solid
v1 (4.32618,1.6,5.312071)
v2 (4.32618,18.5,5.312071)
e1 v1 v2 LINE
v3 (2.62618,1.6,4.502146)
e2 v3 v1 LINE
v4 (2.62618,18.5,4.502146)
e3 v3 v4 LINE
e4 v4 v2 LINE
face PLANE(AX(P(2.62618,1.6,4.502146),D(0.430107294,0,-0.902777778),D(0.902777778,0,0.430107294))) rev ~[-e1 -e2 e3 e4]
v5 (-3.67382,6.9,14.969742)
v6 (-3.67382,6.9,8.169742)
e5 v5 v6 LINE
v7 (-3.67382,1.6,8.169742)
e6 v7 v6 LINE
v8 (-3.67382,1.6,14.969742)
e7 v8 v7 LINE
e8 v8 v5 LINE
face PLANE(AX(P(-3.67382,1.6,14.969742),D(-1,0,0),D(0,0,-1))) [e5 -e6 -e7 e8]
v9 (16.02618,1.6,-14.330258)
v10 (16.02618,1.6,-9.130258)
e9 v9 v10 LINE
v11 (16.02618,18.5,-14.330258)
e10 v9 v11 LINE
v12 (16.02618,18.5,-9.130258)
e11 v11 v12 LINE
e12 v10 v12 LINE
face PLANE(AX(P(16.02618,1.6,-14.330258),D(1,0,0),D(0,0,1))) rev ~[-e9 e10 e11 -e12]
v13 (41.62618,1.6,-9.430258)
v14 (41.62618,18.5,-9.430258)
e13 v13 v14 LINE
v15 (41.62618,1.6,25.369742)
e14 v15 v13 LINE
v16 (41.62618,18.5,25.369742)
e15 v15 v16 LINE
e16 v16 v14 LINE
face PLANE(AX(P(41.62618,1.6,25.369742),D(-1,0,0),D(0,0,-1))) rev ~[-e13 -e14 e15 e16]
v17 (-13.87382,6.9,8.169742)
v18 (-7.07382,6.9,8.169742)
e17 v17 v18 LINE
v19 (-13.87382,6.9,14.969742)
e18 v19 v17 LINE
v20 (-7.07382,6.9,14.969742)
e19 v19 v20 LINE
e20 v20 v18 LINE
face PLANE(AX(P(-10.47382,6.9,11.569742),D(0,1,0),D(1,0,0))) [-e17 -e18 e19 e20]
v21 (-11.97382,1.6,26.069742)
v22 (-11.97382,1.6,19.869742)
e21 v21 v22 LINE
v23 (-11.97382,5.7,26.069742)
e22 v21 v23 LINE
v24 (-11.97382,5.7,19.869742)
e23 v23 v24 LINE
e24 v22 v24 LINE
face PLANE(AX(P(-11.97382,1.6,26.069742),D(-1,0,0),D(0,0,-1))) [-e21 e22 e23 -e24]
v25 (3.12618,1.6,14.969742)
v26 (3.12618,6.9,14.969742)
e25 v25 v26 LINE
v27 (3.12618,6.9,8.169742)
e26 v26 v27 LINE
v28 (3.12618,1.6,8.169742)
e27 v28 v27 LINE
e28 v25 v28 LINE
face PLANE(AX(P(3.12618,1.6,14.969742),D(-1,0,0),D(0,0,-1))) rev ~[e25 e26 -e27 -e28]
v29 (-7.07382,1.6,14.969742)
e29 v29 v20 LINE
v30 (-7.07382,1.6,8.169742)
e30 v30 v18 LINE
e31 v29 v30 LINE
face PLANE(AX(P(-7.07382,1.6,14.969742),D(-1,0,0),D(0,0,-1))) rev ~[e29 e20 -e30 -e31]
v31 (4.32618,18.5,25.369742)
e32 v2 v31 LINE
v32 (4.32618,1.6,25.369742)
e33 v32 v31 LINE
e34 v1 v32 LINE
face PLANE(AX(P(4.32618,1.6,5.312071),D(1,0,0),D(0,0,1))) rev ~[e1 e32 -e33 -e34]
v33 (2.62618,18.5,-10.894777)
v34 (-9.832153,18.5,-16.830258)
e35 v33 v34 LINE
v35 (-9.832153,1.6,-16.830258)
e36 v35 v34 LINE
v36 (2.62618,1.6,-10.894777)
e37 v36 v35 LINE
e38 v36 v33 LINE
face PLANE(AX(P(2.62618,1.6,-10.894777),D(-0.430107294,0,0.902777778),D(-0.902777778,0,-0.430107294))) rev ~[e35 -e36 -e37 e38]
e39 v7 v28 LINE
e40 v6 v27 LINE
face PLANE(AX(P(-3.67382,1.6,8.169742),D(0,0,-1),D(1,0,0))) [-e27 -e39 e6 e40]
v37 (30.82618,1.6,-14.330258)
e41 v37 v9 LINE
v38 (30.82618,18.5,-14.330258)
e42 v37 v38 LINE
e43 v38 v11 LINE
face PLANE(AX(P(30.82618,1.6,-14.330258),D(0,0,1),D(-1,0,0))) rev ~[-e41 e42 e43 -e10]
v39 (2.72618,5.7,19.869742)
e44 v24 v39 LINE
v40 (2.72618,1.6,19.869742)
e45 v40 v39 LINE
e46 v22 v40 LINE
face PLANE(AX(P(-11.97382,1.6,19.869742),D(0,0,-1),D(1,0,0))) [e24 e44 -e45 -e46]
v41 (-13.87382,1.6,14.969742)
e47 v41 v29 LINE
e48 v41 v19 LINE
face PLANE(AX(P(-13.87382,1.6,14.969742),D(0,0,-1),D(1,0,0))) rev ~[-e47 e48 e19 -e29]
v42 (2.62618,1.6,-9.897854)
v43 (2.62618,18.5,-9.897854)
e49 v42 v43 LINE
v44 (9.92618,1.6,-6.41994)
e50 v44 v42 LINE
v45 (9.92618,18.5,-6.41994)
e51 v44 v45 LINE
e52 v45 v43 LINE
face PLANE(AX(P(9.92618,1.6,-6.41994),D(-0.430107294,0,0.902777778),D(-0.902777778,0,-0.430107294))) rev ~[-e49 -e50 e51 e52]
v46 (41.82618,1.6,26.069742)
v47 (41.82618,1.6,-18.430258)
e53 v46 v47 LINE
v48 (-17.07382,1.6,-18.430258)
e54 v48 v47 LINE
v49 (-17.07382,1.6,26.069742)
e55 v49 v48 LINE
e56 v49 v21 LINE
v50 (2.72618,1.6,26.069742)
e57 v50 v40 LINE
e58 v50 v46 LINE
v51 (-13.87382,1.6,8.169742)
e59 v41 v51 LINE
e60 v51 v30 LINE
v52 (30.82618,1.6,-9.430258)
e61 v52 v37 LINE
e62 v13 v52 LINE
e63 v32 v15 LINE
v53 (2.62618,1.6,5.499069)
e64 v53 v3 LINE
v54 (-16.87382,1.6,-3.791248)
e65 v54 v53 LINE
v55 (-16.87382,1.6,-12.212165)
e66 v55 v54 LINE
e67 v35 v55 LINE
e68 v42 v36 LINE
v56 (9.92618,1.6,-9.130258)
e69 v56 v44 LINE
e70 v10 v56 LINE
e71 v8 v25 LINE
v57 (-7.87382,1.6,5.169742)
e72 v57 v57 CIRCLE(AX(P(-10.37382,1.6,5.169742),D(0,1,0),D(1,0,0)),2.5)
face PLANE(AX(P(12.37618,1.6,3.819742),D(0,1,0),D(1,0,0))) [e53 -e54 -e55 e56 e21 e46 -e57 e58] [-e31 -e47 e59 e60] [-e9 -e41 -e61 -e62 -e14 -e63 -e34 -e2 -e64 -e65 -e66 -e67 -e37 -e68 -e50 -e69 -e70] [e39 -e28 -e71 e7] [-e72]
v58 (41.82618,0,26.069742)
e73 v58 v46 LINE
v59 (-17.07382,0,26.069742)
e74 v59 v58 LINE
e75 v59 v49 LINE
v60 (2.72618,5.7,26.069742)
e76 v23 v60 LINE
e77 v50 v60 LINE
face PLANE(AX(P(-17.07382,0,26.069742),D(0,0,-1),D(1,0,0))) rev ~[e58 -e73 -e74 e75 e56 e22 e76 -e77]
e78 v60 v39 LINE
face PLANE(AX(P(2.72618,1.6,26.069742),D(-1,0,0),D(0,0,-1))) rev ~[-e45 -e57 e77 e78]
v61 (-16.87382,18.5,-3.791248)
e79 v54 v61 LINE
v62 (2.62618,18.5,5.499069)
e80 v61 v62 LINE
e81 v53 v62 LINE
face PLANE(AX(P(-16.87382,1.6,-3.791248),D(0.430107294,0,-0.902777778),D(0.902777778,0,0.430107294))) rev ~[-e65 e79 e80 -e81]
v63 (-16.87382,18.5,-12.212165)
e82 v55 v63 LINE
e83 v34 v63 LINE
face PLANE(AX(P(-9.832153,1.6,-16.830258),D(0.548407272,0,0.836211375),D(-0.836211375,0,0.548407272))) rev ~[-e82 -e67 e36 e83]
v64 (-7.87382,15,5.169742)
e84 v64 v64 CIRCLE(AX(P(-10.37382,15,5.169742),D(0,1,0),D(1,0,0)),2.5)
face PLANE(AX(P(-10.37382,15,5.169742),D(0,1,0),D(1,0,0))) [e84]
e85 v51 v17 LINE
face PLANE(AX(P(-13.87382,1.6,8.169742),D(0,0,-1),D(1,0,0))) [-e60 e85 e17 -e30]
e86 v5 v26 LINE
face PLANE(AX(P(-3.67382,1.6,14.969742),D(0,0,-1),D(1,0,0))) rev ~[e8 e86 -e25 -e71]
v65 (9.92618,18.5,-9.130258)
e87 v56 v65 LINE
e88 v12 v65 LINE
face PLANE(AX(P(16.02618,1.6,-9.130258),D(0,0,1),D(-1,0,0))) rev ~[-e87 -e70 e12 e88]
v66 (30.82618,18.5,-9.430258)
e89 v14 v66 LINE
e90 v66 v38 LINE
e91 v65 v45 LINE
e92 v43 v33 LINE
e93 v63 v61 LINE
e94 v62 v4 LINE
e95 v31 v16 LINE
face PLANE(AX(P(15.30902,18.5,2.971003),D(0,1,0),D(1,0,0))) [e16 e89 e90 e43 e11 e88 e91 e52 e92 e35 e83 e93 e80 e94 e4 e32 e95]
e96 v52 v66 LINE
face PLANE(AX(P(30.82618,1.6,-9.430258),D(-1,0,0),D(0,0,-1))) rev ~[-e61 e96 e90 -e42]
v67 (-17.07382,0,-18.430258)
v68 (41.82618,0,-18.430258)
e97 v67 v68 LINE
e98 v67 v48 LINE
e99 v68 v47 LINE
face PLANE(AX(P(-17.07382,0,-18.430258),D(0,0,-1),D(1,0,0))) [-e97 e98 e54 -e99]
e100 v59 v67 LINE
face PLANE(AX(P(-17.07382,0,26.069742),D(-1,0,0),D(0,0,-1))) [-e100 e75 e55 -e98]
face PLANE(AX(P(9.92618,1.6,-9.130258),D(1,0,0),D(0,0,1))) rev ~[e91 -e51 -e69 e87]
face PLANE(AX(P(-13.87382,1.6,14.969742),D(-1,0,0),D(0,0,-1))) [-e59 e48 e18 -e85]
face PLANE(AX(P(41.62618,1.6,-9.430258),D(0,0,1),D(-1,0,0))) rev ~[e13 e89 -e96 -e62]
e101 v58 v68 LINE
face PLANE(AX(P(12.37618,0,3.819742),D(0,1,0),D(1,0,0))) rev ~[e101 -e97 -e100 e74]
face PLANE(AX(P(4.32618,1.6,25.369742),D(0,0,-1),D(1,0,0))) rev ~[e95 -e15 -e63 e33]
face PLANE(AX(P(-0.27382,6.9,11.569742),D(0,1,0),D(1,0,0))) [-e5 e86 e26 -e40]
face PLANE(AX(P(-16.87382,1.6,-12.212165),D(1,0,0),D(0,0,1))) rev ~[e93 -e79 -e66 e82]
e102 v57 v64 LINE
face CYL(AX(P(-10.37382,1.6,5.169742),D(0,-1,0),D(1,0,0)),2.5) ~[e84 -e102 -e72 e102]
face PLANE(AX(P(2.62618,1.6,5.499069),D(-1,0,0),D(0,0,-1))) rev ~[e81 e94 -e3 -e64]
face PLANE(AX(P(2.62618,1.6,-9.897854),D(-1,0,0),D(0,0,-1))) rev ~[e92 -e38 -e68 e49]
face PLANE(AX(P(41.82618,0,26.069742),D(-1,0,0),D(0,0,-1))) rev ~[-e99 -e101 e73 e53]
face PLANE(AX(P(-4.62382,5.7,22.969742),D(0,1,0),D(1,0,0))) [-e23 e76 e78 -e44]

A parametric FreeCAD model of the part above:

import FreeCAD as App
import Part
import Sketcher

V = App.Vector
Q = App.Units.Quantity


def add_polygon(sketch, points):
    """Adds a closed chain of lines whose ends are joined by coincident constraints."""
    first, n = sketch.GeometryCount, len(points)
    for a, b in zip(points, points[1:] + points[:1]):
        sketch.addGeometry(Part.LineSegment(App.Vector(*a, 0), App.Vector(*b, 0)), False)
    for i in range(n):
        sketch.addConstraint(Sketcher.Constraint("Coincident", first + i, 2, first + (i + 1) % n, 1))

doc = App.newDocument("Part")
body = doc.addObject("PartDesign::Body", "Body")

# Sketch on XZ plane
sketch1 = body.newObject("Sketcher::SketchObject", "Sketch")
sketch1.AttachmentSupport = (doc.getObject("XZ_Plane"), [""])
sketch1.MapMode = "FlatFace"
add_polygon(sketch1, [(-17.07382, -18.430258), (-17.07382, 26.069742), (41.82618, 26.069742), (41.82618, -18.430258)])  # lines 0-3
sketch1.addConstraint([
    Sketcher.Constraint("Vertical", 0),
    Sketcher.Constraint("Horizontal", 1),
    Sketcher.Constraint("Vertical", 2),
    Sketcher.Constraint("Horizontal", 3),
    Sketcher.Constraint("DistanceX", 1, 1, 1, 2, Q("58.9 mm")),
    Sketcher.Constraint("DistanceY", 0, 1, 0, 2, Q("44.5 mm")),
    Sketcher.Constraint("DistanceX", 0, 2, -1, 1, Q("17.07382 mm")),
    Sketcher.Constraint("DistanceY", -1, 1, 0, 2, Q("26.069742 mm")),
])
pad1 = body.newObject("PartDesign::Pad", "Pad")
pad1.Profile = sketch1
pad1.Length = 1.6
pad1.Reversed = True

# Sketch on XZ plane
sketch2 = body.newObject("Sketcher::SketchObject", "Sketch001")
sketch2.AttachmentSupport = (doc.getObject("XZ_Plane"), [""])
sketch2.MapMode = "FlatFace"
sketch2.AttachmentOffset = App.Placement(V(0, 0, -1.6), App.Rotation())
add_polygon(sketch2, [(-16.87382, -12.212165), (-16.87382, -3.791248), (2.62618, 5.499069), (2.62618, 4.502146), (4.32618, 5.312071), (4.32618, 25.369742), (41.62618, 25.369742), (41.62618, -9.430258), (30.82618, -9.430258), (30.82618, -14.330258), (16.02618, -14.330258), (16.02618, -9.130258), (9.92618, -9.130258), (9.92618, -6.41994), (2.62618, -9.897854), (2.62618, -10.894777), (-9.832153, -16.830258)])  # lines 0-16
sketch2.addConstraint([
    Sketcher.Constraint("Vertical", 0),
    Sketcher.Constraint("Vertical", 2),
    Sketcher.Constraint("Vertical", 4),
    Sketcher.Constraint("Horizontal", 5),
    Sketcher.Constraint("Vertical", 6),
    Sketcher.Constraint("Horizontal", 7),
    Sketcher.Constraint("Vertical", 8),
    Sketcher.Constraint("Horizontal", 9),
    Sketcher.Constraint("Vertical", 10),
    Sketcher.Constraint("Horizontal", 11),
    Sketcher.Constraint("Vertical", 12),
    Sketcher.Constraint("Vertical", 14),
    Sketcher.Constraint("Parallel", 1, 3),
    Sketcher.Constraint("Parallel", 3, 13),
    Sketcher.Constraint("Parallel", 13, 15),
    Sketcher.Constraint("Vertical", 2, 2, 13, 2),
    Sketcher.Constraint("Equal", 2, 14),
    Sketcher.Constraint("DistanceX", 5, 1, 5, 2, Q("37.3 mm")),
    Sketcher.Constraint("DistanceX", 7, 2, 7, 1, Q("10.8 mm")),
    Sketcher.Constraint("DistanceX", 9, 2, 9, 1, Q("14.8 mm")),
    Sketcher.Constraint("DistanceX", 11, 2, 11, 1, Q("6.1 mm")),
    Sketcher.Constraint("DistanceY", 6, 2, 6, 1, Q("34.8 mm")),
    Sketcher.Constraint("DistanceY", 8, 2, 8, 1, Q("4.9 mm")),
    Sketcher.Constraint("DistanceY", 10, 1, 10, 2, Q("5.2 mm")),
    Sketcher.Constraint("DistanceX", 1, 2, 5, 2, Q("39 mm")),
    Sketcher.Constraint("Distance", 1, Q("21.6 mm")),
    Sketcher.Constraint("Distance", 15, Q("13.8 mm")),
    Sketcher.Constraint("DistanceX", 0, 2, 1, 2, Q("19.5 mm")),
    Sketcher.Constraint("DistanceY", 13, 2, 2, 2, Q("14.4 mm")),
    Sketcher.Constraint("DistanceY", 15, 2, 11, 2, Q("7.7 mm")),
    Sketcher.Constraint("DistanceY", 4, 1, 4, 2, Q("20.057671 mm")),
    Sketcher.Constraint("DistanceY", 0, 1, 0, 2, Q("8.420917 mm")),
    Sketcher.Constraint("DistanceX", 0, 2, -1, 1, Q("16.87382 mm")),
    Sketcher.Constraint("DistanceY", 0, 2, -1, 1, Q("3.791248 mm")),
])
pad2 = body.newObject("PartDesign::Pad", "Pad001")
pad2.Profile = sketch2
pad2.Length = 16.9
pad2.Reversed = True

# Sketch on XZ plane
sketch3 = body.newObject("Sketcher::SketchObject", "Sketch002")
sketch3.AttachmentSupport = (doc.getObject("XZ_Plane"), [""])
sketch3.MapMode = "FlatFace"
sketch3.AttachmentOffset = App.Placement(V(0, 0, -1.6), App.Rotation())
add_polygon(sketch3, [(-11.97382, 19.869742), (-11.97382, 26.069742), (2.72618, 26.069742), (2.72618, 19.869742)])  # lines 0-3
sketch3.addConstraint([
    Sketcher.Constraint("Vertical", 0),
    Sketcher.Constraint("Horizontal", 1),
    Sketcher.Constraint("Vertical", 2),
    Sketcher.Constraint("Horizontal", 3),
    Sketcher.Constraint("DistanceX", 1, 1, 1, 2, Q("14.7 mm")),
    Sketcher.Constraint("DistanceY", 0, 1, 0, 2, Q("6.2 mm")),
    Sketcher.Constraint("DistanceX", 0, 2, -1, 1, Q("11.97382 mm")),
    Sketcher.Constraint("DistanceY", -1, 1, 0, 2, Q("26.069742 mm")),
])
pad3 = body.newObject("PartDesign::Pad", "Pad002")
pad3.Profile = sketch3
pad3.Length = 4.1
pad3.Reversed = True

# Sketch on XZ plane
sketch4 = body.newObject("Sketcher::SketchObject", "Sketch003")
sketch4.AttachmentSupport = (doc.getObject("XZ_Plane"), [""])
sketch4.MapMode = "FlatFace"
sketch4.AttachmentOffset = App.Placement(V(0, 0, -1.6), App.Rotation())
add_polygon(sketch4, [(-13.87382, 8.169742), (-13.87382, 14.969742), (-7.07382, 14.969742), (-7.07382, 8.169742)])  # lines 0-3
add_polygon(sketch4, [(-3.67382, 8.169742), (-3.67382, 14.969742), (3.12618, 14.969742), (3.12618, 8.169742)])  # lines 4-7
sketch4.addConstraint([
    Sketcher.Constraint("Vertical", 0),
    Sketcher.Constraint("Horizontal", 1),
    Sketcher.Constraint("Vertical", 2),
    Sketcher.Constraint("Horizontal", 3),
    Sketcher.Constraint("Vertical", 4),
    Sketcher.Constraint("Horizontal", 5),
    Sketcher.Constraint("Vertical", 6),
    Sketcher.Constraint("Horizontal", 7),
    Sketcher.Constraint("Horizontal", 1, 2, 4, 2),
    Sketcher.Constraint("Horizontal", 3, 2, 6, 2),
    Sketcher.Constraint("Equal", 3, 5),
    Sketcher.Constraint("Equal", 7, 0),
    Sketcher.Constraint("DistanceX", 1, 1, 1, 2, Q("6.8 mm")),
    Sketcher.Constraint("DistanceX", 0, 2, 5, 2, Q("17 mm")),
    Sketcher.Constraint("DistanceX", 0, 2, -1, 1, Q("13.87382 mm")),
    Sketcher.Constraint("DistanceY", -1, 1, 0, 2, Q("14.969742 mm")),
])
pad4 = body.newObject("PartDesign::Pad", "Pad003")
pad4.Profile = sketch4
pad4.Length = 5.3
pad4.Reversed = True

# Sketch on XZ plane
sketch5 = body.newObject("Sketcher::SketchObject", "Sketch004")
sketch5.AttachmentSupport = (doc.getObject("XZ_Plane"), [""])
sketch5.MapMode = "FlatFace"
sketch5.AttachmentOffset = App.Placement(V(0, 0, -1.6), App.Rotation())
sketch5.addGeometry(Part.Circle(V(-10.37382, 5.169742, 0), V(0, 0, 1), 2.5), False)
sketch5.addConstraint([
    Sketcher.Constraint("Diameter", 0, Q("5 mm")),
    Sketcher.Constraint("DistanceX", 0, 3, -1, 1, Q("10.37382 mm")),
    Sketcher.Constraint("DistanceY", -1, 1, 0, 3, Q("5.169742 mm")),
])
pad5 = body.newObject("PartDesign::Pad", "Pad004")
pad5.Profile = sketch5
pad5.Length = 13.4
pad5.Reversed = True

doc.recompute()
